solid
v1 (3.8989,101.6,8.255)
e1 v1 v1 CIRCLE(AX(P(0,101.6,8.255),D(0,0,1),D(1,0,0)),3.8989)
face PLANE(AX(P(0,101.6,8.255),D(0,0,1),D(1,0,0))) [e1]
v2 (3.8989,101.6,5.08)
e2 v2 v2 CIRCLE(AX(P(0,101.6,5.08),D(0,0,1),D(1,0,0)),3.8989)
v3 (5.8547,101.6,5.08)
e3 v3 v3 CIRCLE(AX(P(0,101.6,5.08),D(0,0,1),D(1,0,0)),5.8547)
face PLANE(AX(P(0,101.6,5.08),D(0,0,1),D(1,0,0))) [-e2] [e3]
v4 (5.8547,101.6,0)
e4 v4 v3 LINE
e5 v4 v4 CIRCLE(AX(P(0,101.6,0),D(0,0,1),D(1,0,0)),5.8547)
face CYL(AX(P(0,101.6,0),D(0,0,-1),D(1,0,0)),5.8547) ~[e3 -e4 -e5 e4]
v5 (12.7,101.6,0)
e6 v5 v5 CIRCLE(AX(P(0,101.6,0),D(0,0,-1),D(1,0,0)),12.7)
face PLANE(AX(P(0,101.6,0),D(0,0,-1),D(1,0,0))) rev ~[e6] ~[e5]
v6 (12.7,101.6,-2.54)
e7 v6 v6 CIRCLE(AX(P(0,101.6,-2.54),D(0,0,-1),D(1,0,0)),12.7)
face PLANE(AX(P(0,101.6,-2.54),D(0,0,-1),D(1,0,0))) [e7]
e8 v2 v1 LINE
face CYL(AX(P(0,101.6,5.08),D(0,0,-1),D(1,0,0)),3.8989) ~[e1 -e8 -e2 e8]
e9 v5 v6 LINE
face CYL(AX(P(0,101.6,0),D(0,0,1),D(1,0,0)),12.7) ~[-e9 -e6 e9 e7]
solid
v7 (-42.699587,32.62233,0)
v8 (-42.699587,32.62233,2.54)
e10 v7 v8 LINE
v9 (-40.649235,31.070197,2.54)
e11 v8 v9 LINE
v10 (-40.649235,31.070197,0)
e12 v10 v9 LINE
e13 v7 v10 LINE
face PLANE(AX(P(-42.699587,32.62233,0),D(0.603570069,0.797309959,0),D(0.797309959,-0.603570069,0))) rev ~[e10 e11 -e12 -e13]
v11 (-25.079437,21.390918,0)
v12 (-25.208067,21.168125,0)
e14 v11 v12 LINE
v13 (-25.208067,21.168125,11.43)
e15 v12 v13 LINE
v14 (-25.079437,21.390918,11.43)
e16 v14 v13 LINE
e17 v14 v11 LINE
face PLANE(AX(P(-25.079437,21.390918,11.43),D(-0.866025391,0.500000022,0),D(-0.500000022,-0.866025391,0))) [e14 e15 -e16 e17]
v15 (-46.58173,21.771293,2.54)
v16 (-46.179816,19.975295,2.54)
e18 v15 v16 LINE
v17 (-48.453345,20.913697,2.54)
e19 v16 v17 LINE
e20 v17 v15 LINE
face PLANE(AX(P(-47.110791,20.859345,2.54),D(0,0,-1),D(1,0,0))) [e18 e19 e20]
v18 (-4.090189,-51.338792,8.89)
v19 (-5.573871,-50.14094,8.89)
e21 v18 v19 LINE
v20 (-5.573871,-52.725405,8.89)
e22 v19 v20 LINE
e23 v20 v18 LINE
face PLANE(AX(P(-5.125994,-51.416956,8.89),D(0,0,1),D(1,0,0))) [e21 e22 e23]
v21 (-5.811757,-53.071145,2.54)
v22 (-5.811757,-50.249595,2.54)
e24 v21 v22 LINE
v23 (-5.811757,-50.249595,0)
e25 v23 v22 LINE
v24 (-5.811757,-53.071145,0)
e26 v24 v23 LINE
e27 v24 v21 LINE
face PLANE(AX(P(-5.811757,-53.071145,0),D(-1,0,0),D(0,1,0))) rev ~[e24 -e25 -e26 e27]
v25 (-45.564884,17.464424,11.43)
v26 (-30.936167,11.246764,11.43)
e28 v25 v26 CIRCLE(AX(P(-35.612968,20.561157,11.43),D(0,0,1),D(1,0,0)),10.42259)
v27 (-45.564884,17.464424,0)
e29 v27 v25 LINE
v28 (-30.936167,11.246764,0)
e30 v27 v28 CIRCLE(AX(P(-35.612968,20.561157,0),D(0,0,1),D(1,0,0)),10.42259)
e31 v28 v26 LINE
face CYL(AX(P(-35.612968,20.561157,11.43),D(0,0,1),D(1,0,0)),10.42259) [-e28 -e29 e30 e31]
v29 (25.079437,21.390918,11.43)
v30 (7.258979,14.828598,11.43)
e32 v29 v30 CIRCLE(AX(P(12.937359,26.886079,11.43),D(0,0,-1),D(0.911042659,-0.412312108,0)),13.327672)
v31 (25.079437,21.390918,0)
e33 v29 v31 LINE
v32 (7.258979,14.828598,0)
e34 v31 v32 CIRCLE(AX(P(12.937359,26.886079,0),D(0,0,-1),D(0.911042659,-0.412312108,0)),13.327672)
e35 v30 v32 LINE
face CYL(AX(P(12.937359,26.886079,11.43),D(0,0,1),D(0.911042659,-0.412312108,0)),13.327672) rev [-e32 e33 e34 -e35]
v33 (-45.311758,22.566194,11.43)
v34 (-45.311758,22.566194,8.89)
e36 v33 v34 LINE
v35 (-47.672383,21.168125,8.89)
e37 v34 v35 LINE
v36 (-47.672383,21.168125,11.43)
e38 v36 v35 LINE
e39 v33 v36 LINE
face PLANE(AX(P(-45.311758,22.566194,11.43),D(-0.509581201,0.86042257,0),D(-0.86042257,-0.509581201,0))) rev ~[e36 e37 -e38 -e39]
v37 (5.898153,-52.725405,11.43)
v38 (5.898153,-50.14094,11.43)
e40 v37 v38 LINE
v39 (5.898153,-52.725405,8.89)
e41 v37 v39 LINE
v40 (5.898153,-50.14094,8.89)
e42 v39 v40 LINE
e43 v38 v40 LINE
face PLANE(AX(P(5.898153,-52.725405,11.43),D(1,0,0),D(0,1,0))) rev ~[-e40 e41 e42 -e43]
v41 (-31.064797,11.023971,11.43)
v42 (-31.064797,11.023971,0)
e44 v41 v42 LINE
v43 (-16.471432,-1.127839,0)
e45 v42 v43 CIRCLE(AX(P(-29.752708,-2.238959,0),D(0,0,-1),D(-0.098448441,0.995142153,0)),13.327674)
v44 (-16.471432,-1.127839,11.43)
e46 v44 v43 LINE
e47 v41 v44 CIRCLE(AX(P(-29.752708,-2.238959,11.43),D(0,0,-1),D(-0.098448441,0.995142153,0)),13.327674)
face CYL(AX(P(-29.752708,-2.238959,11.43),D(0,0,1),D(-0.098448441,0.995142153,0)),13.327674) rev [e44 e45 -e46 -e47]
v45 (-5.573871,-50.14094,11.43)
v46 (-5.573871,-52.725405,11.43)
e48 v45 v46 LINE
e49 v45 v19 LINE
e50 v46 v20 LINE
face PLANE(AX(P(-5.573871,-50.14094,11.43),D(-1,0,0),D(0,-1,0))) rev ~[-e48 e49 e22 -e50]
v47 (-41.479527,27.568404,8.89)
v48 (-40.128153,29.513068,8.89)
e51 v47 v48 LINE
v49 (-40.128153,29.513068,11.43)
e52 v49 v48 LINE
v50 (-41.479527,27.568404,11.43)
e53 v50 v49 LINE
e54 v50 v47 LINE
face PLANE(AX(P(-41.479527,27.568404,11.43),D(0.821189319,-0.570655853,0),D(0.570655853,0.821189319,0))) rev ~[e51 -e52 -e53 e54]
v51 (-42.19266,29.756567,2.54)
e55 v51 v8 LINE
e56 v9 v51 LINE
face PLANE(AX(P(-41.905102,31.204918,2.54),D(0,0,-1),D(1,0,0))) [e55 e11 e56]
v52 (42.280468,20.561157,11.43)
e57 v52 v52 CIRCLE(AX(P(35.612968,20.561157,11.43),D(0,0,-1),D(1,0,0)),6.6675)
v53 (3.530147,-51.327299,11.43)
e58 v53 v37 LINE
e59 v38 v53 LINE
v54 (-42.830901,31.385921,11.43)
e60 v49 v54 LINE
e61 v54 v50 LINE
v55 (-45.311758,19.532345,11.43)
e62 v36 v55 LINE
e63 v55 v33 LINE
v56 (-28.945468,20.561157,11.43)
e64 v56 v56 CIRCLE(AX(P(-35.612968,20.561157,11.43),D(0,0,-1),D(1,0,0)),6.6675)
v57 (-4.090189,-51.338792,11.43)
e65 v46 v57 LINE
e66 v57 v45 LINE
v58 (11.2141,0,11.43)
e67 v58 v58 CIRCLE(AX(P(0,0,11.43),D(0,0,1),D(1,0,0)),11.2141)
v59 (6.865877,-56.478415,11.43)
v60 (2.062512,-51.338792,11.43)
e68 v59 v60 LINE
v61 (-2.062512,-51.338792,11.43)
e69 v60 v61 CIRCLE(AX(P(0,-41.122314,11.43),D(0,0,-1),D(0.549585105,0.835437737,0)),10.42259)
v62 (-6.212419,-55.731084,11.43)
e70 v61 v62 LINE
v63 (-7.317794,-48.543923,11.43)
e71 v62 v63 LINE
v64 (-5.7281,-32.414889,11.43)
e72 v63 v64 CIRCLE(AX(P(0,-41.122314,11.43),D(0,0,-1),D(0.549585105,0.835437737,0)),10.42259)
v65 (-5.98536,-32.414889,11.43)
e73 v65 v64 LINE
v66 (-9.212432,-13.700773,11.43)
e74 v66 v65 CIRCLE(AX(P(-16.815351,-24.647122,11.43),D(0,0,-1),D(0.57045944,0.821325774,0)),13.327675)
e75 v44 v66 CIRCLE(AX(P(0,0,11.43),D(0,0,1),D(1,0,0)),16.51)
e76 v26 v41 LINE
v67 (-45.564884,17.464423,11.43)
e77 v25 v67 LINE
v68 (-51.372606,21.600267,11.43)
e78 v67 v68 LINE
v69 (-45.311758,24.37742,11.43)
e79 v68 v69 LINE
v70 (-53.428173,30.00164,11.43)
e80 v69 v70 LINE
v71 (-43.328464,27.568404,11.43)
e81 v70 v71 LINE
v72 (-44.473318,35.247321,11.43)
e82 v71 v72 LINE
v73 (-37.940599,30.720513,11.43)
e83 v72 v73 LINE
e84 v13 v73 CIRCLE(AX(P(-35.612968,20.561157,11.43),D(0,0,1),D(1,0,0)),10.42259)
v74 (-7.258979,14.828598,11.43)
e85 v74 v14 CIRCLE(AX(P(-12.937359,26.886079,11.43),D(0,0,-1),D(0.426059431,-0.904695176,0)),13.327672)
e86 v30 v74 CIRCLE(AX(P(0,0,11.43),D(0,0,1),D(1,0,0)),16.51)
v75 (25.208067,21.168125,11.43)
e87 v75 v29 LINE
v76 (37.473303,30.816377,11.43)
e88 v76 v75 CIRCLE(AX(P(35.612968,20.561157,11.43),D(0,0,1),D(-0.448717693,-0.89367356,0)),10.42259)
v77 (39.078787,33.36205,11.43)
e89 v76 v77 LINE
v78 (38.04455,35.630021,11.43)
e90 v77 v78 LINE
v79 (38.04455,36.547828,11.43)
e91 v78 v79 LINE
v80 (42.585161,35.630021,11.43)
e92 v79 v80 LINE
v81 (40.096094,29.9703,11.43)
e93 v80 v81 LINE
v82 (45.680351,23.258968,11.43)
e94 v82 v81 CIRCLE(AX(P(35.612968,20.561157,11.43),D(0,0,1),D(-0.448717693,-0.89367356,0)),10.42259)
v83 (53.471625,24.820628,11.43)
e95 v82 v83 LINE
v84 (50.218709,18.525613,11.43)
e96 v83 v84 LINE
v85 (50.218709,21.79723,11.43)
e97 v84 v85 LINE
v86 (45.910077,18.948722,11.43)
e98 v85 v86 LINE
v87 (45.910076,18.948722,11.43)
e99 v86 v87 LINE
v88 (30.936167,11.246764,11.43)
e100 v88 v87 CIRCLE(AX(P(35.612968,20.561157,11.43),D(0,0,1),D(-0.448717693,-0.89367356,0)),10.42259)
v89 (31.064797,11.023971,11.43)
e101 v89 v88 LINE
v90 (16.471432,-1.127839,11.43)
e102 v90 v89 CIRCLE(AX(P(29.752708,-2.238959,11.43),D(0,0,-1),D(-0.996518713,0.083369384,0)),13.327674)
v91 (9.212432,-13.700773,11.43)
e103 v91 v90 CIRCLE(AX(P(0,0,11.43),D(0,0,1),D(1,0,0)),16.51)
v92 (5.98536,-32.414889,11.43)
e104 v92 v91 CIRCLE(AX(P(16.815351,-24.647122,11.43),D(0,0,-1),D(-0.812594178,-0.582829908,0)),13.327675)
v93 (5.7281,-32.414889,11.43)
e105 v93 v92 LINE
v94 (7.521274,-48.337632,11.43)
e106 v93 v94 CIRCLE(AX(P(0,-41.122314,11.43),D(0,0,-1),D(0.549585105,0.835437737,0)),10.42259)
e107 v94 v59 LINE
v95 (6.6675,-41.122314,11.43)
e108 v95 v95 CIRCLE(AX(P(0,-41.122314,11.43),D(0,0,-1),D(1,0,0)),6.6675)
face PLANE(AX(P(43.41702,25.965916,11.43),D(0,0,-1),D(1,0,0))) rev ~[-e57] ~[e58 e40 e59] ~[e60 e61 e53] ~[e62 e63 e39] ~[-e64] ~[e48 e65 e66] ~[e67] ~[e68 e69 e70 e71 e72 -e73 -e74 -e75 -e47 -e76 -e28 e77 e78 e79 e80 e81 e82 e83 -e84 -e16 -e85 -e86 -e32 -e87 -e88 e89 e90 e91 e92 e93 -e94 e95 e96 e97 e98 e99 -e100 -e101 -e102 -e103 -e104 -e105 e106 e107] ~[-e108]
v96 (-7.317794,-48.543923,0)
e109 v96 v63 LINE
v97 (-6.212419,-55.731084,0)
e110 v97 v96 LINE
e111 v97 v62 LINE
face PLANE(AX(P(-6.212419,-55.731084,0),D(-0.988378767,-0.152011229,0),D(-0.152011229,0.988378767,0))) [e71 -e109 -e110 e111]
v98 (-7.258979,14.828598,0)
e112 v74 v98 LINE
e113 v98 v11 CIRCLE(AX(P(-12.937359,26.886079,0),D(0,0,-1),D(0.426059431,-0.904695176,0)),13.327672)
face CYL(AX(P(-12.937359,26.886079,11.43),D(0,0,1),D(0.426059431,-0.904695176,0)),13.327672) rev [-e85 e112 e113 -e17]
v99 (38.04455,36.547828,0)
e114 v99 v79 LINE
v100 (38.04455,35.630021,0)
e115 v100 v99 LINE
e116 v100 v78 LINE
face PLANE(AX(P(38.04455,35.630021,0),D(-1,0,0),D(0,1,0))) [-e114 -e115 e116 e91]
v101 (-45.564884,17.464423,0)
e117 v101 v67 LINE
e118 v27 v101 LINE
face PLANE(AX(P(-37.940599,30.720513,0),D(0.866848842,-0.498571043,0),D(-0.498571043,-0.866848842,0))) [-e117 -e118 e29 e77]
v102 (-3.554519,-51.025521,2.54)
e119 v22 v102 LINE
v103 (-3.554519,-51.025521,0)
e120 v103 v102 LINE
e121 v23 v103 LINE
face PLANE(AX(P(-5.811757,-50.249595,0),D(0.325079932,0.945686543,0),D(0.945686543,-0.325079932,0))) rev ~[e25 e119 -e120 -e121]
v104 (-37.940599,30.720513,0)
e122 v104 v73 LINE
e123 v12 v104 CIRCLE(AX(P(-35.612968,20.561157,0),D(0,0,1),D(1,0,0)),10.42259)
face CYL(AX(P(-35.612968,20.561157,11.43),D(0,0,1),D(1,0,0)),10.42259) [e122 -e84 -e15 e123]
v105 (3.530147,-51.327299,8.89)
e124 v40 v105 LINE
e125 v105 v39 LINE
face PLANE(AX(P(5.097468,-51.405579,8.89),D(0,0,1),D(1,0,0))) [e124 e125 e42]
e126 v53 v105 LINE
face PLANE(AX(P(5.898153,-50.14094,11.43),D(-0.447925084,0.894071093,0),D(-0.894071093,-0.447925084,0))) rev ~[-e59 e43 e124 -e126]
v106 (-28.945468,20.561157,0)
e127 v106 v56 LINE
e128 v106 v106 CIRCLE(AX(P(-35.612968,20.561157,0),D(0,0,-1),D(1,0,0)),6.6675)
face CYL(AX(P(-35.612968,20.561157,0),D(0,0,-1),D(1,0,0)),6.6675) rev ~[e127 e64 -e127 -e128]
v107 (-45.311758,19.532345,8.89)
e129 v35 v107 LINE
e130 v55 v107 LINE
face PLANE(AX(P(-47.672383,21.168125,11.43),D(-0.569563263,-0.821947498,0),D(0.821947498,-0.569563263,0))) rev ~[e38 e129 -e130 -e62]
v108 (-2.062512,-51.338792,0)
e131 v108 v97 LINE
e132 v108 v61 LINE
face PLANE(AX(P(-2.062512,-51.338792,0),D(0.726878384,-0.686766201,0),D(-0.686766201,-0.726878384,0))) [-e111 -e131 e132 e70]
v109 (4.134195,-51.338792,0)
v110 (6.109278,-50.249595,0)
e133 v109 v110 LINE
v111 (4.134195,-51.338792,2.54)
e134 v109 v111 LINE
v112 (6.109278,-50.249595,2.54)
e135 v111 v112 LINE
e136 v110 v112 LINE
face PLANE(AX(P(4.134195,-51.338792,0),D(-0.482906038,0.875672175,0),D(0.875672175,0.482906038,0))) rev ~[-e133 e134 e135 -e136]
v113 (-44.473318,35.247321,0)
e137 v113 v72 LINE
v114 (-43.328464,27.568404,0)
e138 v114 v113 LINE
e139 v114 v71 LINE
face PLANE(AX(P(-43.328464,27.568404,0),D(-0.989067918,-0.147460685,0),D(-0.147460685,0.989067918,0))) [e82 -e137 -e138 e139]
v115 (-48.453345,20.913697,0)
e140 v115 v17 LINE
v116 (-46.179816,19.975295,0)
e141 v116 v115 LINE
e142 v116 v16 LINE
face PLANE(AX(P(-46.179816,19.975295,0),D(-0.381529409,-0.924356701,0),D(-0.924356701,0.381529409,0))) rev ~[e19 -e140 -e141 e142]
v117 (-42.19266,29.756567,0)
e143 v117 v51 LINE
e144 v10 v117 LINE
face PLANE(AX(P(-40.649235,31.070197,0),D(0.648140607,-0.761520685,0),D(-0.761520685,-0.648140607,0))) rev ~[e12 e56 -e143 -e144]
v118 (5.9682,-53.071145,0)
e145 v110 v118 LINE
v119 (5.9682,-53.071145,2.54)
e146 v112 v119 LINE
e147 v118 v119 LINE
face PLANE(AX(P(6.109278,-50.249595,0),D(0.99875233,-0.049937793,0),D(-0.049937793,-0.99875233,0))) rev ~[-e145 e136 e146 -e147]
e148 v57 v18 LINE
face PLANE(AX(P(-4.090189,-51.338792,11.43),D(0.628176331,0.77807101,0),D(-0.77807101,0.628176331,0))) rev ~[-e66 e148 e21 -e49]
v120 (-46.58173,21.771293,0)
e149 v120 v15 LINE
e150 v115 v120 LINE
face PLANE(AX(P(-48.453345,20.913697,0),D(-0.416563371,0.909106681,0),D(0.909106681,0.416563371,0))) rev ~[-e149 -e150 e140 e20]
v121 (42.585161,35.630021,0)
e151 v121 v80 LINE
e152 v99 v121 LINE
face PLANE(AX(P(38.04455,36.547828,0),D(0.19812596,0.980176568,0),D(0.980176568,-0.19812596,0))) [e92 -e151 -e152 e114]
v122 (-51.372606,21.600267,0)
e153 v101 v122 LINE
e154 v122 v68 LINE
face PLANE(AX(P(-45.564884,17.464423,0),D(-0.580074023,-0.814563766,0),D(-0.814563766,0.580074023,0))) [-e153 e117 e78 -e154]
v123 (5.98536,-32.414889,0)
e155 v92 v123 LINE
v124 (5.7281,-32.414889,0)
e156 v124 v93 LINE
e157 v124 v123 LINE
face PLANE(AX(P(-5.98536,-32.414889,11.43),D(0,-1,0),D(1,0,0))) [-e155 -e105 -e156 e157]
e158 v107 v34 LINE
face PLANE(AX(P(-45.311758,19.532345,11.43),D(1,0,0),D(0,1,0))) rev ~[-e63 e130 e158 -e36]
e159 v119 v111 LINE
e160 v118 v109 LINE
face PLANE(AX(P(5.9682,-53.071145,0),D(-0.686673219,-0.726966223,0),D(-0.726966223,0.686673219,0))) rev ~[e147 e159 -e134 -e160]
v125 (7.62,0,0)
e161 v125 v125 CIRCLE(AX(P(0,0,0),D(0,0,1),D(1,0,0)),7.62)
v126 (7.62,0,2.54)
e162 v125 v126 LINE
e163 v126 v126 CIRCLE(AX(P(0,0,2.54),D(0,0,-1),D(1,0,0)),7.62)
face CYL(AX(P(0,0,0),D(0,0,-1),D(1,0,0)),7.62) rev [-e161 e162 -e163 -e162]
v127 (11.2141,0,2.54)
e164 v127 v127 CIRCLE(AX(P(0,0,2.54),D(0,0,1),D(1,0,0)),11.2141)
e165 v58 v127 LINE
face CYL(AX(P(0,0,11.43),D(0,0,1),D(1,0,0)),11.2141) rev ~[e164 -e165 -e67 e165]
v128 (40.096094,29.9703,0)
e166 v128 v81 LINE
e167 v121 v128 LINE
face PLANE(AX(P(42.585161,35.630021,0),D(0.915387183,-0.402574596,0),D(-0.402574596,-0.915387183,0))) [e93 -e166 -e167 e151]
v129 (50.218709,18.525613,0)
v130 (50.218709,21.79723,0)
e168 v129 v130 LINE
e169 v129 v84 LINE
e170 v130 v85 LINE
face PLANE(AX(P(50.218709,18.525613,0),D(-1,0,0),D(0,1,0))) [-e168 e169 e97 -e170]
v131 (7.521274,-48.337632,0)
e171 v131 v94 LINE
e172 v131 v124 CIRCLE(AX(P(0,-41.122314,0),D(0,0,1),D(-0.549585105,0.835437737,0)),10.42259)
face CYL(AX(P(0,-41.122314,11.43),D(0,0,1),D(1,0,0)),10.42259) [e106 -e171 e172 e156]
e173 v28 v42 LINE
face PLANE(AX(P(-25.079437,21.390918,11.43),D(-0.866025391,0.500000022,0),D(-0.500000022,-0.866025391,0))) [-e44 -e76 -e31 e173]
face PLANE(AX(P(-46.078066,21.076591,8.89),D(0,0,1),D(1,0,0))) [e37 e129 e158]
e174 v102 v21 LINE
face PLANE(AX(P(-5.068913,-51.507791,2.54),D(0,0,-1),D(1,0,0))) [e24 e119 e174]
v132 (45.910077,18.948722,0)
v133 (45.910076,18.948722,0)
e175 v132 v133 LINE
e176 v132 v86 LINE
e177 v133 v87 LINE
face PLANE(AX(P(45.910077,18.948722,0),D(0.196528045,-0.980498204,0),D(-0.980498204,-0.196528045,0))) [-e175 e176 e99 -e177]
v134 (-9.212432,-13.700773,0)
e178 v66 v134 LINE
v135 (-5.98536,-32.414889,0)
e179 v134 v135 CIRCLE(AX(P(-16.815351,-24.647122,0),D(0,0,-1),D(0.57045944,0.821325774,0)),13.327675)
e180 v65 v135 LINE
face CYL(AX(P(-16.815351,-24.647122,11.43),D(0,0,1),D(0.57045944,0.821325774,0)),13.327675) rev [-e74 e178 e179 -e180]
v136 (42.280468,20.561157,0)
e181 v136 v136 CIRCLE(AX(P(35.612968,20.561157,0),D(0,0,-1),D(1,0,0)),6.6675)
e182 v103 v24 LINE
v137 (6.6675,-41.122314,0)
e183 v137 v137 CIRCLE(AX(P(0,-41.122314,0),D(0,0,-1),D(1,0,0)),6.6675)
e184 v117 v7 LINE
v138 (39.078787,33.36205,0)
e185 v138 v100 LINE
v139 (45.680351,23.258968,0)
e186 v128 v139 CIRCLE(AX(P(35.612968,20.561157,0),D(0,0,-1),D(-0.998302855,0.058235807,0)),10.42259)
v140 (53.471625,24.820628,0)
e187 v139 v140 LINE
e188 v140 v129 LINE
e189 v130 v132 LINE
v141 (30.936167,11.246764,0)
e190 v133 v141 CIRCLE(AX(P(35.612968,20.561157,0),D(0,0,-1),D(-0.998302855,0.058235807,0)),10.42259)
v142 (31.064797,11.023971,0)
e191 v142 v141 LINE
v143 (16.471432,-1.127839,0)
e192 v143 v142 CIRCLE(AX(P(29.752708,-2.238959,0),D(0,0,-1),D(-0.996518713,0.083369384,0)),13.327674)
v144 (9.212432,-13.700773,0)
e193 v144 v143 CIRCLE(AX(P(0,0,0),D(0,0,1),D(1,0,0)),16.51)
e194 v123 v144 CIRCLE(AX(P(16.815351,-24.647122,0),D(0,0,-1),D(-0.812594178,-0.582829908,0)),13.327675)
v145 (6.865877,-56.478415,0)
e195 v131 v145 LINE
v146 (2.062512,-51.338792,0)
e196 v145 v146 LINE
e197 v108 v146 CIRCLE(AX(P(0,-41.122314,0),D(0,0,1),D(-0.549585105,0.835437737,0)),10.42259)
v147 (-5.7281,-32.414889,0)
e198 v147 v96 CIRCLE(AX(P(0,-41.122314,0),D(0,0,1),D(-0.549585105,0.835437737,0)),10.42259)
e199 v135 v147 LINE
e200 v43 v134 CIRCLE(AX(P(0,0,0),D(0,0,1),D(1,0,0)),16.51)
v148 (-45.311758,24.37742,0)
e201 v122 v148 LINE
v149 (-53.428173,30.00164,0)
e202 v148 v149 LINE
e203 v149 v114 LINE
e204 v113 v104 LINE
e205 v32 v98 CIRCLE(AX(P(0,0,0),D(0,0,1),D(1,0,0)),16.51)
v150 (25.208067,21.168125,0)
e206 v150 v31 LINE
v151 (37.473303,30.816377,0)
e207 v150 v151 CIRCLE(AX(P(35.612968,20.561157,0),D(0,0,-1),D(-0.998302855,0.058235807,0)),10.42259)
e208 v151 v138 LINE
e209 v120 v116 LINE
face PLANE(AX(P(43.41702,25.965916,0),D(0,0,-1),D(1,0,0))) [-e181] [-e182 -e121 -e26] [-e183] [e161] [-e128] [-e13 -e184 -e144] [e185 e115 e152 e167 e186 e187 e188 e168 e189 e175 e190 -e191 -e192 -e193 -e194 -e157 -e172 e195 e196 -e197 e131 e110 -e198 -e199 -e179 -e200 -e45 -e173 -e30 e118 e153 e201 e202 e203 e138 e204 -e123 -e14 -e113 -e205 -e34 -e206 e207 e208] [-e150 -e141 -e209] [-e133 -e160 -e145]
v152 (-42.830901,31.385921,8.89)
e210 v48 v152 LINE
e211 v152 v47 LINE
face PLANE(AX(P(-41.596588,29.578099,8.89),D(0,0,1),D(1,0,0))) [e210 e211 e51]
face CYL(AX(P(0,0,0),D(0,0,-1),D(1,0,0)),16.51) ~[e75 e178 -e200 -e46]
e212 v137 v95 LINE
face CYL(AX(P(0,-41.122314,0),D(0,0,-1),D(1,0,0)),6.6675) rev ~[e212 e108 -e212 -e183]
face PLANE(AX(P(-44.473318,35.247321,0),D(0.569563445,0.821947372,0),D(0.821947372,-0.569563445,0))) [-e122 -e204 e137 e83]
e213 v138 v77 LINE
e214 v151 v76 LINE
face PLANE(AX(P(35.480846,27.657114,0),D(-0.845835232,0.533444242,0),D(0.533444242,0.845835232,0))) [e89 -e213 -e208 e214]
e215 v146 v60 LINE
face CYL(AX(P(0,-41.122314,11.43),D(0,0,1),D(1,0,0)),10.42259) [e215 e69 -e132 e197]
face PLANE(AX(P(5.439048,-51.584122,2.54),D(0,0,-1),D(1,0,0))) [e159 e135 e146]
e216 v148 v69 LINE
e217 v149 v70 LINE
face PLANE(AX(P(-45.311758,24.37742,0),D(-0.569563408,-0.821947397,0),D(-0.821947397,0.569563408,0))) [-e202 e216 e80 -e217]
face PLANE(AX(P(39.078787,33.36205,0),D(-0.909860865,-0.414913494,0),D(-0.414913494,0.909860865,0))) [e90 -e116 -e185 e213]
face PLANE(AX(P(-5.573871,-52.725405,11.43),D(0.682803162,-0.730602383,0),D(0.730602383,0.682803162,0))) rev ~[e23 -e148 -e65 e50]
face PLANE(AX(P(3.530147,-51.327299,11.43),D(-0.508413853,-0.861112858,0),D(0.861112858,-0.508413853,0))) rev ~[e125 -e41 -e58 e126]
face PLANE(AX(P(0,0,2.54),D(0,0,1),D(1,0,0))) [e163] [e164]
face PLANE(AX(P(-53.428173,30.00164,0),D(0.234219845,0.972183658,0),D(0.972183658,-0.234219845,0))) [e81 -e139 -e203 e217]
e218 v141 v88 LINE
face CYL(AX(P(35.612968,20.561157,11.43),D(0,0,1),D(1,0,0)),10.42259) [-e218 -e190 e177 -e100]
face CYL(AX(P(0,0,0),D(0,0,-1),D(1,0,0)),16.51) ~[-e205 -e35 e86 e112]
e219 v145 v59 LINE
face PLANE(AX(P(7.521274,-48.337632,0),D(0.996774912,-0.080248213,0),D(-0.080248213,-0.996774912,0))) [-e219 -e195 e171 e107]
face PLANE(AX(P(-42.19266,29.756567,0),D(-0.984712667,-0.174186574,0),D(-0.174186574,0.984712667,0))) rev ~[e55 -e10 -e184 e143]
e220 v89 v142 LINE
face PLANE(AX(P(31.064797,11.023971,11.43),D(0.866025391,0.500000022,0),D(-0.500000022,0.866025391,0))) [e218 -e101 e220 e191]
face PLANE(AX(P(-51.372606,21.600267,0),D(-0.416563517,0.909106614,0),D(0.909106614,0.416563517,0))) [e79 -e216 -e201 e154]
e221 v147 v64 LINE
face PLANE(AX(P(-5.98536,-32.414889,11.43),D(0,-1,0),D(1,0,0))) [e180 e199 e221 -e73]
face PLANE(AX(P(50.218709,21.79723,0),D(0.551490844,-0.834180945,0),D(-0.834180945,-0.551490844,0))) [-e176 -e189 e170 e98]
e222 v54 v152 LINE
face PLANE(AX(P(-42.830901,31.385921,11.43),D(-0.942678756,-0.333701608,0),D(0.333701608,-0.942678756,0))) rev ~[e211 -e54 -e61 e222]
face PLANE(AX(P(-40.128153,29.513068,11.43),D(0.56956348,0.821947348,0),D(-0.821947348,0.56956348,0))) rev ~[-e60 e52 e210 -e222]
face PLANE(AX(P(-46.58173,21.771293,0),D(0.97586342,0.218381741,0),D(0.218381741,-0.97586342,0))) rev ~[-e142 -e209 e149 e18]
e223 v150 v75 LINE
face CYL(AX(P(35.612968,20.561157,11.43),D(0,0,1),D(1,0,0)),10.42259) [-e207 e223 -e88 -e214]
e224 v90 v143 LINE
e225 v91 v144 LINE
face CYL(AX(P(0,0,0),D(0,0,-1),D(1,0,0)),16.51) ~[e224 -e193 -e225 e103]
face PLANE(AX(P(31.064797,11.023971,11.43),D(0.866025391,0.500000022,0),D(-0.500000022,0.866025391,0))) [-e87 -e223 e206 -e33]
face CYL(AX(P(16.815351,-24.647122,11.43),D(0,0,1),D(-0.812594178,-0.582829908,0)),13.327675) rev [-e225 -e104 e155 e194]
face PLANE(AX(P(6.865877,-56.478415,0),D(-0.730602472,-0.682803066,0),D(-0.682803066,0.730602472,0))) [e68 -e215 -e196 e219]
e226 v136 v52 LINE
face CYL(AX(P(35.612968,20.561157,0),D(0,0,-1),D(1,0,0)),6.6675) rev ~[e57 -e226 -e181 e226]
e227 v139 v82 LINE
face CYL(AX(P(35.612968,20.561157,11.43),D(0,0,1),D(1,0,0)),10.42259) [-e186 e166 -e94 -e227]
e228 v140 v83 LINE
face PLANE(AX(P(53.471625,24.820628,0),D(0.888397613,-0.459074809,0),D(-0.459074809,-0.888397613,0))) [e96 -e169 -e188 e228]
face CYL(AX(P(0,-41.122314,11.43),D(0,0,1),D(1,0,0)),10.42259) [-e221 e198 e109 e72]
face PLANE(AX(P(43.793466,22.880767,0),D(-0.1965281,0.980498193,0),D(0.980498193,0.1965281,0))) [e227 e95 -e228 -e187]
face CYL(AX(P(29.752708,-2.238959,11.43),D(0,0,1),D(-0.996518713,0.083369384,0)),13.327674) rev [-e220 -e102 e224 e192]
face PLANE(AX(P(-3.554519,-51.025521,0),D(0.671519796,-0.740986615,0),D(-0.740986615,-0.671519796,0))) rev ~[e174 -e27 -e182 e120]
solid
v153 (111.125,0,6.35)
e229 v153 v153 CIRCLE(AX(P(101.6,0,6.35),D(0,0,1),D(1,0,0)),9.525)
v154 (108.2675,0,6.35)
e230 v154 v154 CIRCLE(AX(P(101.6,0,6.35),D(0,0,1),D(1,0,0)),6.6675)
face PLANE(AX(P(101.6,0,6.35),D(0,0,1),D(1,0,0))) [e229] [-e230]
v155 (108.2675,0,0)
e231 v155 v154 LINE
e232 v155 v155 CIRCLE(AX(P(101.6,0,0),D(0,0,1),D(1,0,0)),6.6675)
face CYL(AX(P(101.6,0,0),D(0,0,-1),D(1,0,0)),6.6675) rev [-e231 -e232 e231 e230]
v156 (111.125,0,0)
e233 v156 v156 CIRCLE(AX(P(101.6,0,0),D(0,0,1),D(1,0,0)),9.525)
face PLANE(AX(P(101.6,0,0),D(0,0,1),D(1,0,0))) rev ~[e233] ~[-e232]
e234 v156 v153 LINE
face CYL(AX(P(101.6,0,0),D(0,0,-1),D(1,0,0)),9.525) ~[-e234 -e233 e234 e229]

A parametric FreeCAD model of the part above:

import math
import FreeCAD as App
import Part
import Sketcher

V = App.Vector
Q = App.Units.Quantity

doc = App.newDocument("Part")
body = doc.addObject("PartDesign::Body", "Body")

# Sketch on XY plane
sketch1 = body.newObject("Sketcher::SketchObject", "Sketch")
sketch1.AttachmentSupport = (doc.getObject("XY_Plane"), [""])
sketch1.MapMode = "FlatFace"
sketch1.addGeometry(Part.Circle(V(0, 102, 0), V(0, 0, 1), 6), False)
sketch1.addConstraint([
    Sketcher.Constraint("PointOnObject", 0, 3, -2),
    Sketcher.Constraint("Diameter", 0, Q("0.461 in")),
    Sketcher.Constraint("DistanceY", -1, 1, 0, 3, Q("4 in")),
])
pad1 = body.newObject("PartDesign::Pad", "Pad")
pad1.Profile = sketch1
pad1.Length = Q("0.2 in")

# Sketch on XY plane
sketch2 = body.newObject("Sketcher::SketchObject", "Sketch001")
sketch2.AttachmentSupport = (doc.getObject("XY_Plane"), [""])
sketch2.MapMode = "FlatFace"
sketch2.AttachmentOffset = App.Placement(V(0, 0, 0.2 * 25.4), App.Rotation())
sketch2.addGeometry(Part.Circle(V(0, 101.6, 0), V(0, 0, 1), 3.9), False)
sketch2.addConstraint([
    Sketcher.Constraint("PointOnObject", 0, 3, -2),
    Sketcher.Constraint("Diameter", 0, Q("0.307 in")),
    Sketcher.Constraint("DistanceY", -1, 1, 0, 3, Q("4 in")),
])
pad2 = body.newObject("PartDesign::Pad", "Pad001")
pad2.Profile = sketch2
pad2.Length = Q("0.125 in")

# Sketch on XY plane
sketch3 = body.newObject("Sketcher::SketchObject", "Sketch002")
sketch3.AttachmentSupport = (doc.getObject("XY_Plane"), [""])
sketch3.MapMode = "FlatFace"
sketch3.addGeometry(Part.Circle(V(0, 102, 0), V(0, 0, 1), 13), False)
sketch3.addConstraint([
    Sketcher.Constraint("PointOnObject", 0, 3, -2),
    Sketcher.Constraint("Diameter", 0, Q("1 in")),
    Sketcher.Constraint("DistanceY", -1, 1, 0, 3, Q("4 in")),
])
pad3 = body.newObject("PartDesign::Pad", "Pad002")
pad3.Profile = sketch3
pad3.Length = Q("0.1 in")
pad3.Reversed = True
body2 = doc.addObject("PartDesign::Body", "Body001")

# Sketch on XY plane
sketch4 = body2.newObject("Sketcher::SketchObject", "Sketch003")
sketch4.AttachmentSupport = (doc.getObject("XY_Plane001"), [""])
sketch4.MapMode = "FlatFace"
sketch4.addGeometry([
    Part.Circle(V(102, 0, 0), V(0, 0, 1), 10),
    Part.Circle(V(102, 0, 0), V(0, 0, 1), 7),
], False)
sketch4.addConstraint([
    Sketcher.Constraint("Coincident", 1, 3, 0, 3),
    Sketcher.Constraint("PointOnObject", 0, 3, -1),
    Sketcher.Constraint("Diameter", 0, Q("0.75 in")),
    Sketcher.Constraint("Diameter", 1, Q("0.525 in")),
    Sketcher.Constraint("DistanceX", -1, 1, 0, 3, Q("4 in")),
])
pad4 = body2.newObject("PartDesign::Pad", "Pad003")
pad4.Profile = sketch4
pad4.Length = Q("0.25 in")
body3 = doc.addObject("PartDesign::Body", "Body002")

# Sketch on XY plane
sketch5 = body3.newObject("Sketcher::SketchObject", "Sketch004")
sketch5.AttachmentSupport = (doc.getObject("XY_Plane002"), [""])
sketch5.MapMode = "FlatFace"
sketch5.addGeometry([
    Part.Circle(V(0, 0, 0), V(0, 0, 1), 17),
    Part.Circle(V(0, 0, 0), V(0, 0, 1), 8),
], False)
sketch5.addConstraint([
    Sketcher.Constraint("Coincident", 0, 3, -1, 1),
    Sketcher.Constraint("Coincident", 1, 3, -1, 1),
    Sketcher.Constraint("Diameter", 0, Q("1.3 in")),
    Sketcher.Constraint("Diameter", 1, Q("0.6 in")),
])
pad5 = body3.newObject("PartDesign::Pad", "Pad004")
pad5.Profile = sketch5
pad5.Length = Q("0.45 in")

# Sketch on XY plane
sketch6 = body3.newObject("Sketcher::SketchObject", "Sketch005")
sketch6.AttachmentSupport = (doc.getObject("XY_Plane002"), [""])
sketch6.MapMode = "FlatFace"
sketch6.AttachmentOffset = App.Placement(V(0, 0, 0.45 * 25.4), App.Rotation())
sketch6.addGeometry(Part.Circle(V(0, 0, 0), V(0, 0, 1), 11), False)
sketch6.addConstraint([
    Sketcher.Constraint("Coincident", 0, 3, -1, 1),
    Sketcher.Constraint("Diameter", 0, Q("0.883 in")),
])
pocket1 = body3.newObject("PartDesign::Pocket", "Pocket")
pocket1.Profile = sketch6
pocket1.Length = Q("0.35 in")

# Sketch on XY plane
sketch7 = body3.newObject("Sketcher::SketchObject", "Sketch006")
sketch7.AttachmentSupport = (doc.getObject("XY_Plane002"), [""])
sketch7.MapMode = "FlatFace"
sketch7.AttachmentOffset = App.Placement(V(0, 0, 0.45 * 25.4), App.Rotation())
sketch7.addGeometry([
    Part.ArcOfCircle(Part.Circle(V(17, -25, 0), V(0, 0, 1), 13), math.radians(125), math.radians(216)),  # 0
    Part.LineSegment(V(9, -14, 0), V(-9, -14, 0)),  # 1
    Part.ArcOfCircle(Part.Circle(V(-17, -25, 0), V(0, 0, 1), 13), math.radians(-36), math.radians(55)),  # 2
    Part.LineSegment(V(-6, -32, 0), V(6, -32, 0)),  # 3
    Part.ArcOfCircle(Part.Circle(V(13, 27, 0), V(0, 0, 1), 13), math.radians(-115), math.radians(-24)),  # 4
    Part.LineSegment(V(7, 15, 0), V(16, -1, 0)),  # 5
    Part.ArcOfCircle(Part.Circle(V(30, -2, 0), V(0, 0, 1), 13), math.radians(84), math.radians(175)),  # 6
    Part.LineSegment(V(31, 11, 0), V(25, 21, 0)),  # 7
    Part.ArcOfCircle(Part.Circle(V(-30, -2, 0), V(0, 0, 1), 13), math.radians(5), math.radians(96)),  # 8
    Part.LineSegment(V(-16, -1, 0), V(-7, 15, 0)),  # 9
    Part.ArcOfCircle(Part.Circle(V(-13, 27, 0), V(0, 0, 1), 13), math.radians(-156), math.radians(-65)),  # 10
    Part.LineSegment(V(-25, 21, 0), V(-31, 11, 0)),  # 11
], False)
sketch7.addConstraint([
    Sketcher.Constraint("Coincident", 0, 1, 1, 1),
    Sketcher.Constraint("Coincident", 1, 2, 2, 2),
    Sketcher.Constraint("Coincident", 2, 1, 3, 1),
    Sketcher.Constraint("Coincident", 3, 2, 0, 2),
    Sketcher.Constraint("Coincident", 4, 1, 5, 1),
    Sketcher.Constraint("Coincident", 5, 2, 6, 2),
    Sketcher.Constraint("Coincident", 6, 1, 7, 1),
    Sketcher.Constraint("Coincident", 7, 2, 4, 2),
    Sketcher.Constraint("Coincident", 8, 1, 9, 1),
    Sketcher.Constraint("Coincident", 9, 2, 10, 2),
    Sketcher.Constraint("Coincident", 10, 1, 11, 1),
    Sketcher.Constraint("Coincident", 11, 2, 8, 2),
    Sketcher.Constraint("Horizontal", 1),
    Sketcher.Constraint("Horizontal", 3),
    Sketcher.Constraint("Equal", 0, 2),
    Sketcher.Constraint("Equal", 4, 6),
    Sketcher.Constraint("Equal", 6, 8),
    Sketcher.Constraint("Equal", 8, 10),
    Sketcher.Constraint("Symmetric", 0, 3, 2, 3, -2),
    Sketcher.Constraint("Symmetric", 6, 3, 8, 3, -2),
    Sketcher.Constraint("Symmetric", 4, 3, 10, 3, -2),
    Sketcher.Constraint("Parallel", 5, 7),
    Sketcher.Constraint("Parallel", 9, 11),
    Sketcher.Constraint("Horizontal", 5, 2, 8, 1),
    Sketcher.Constraint("Horizontal", 4, 1, 9, 2),
    Sketcher.Constraint("Horizontal", 7, 2, 10, 1),
    Sketcher.Constraint("Angle", 5, Q("-60.000001 deg")),
    Sketcher.Constraint("Radius", 4, 13.327672),
    Sketcher.Constraint("DistanceY", 0, 1, -1, 1, Q("0.5394 in")),
    Sketcher.Constraint("Radius", 0, 13.327675),
    Sketcher.Constraint("DistanceX", 3, 1, 3, 2, 11.97072),
    Sketcher.Constraint("DistanceX", 2, 3, 0, 3, 33.630702),
    Sketcher.Constraint("DistanceY", 0, 3, 4, 3, 51.5332),
    Sketcher.Constraint("DistanceY", 0, 1, 6, 3, 11.4618),
    Sketcher.Constraint("Distance", 7, 11.970719),
    Sketcher.Constraint("DistanceX", 1, 2, 1, 1, 18.424906),
    Sketcher.Constraint("DistanceX", -1, 1, 4, 3, 12.937359),
    Sketcher.Constraint("DistanceX", -1, 1, 6, 3, 29.752708),
    Sketcher.Constraint("DistanceX", -1, 1, 4, 1, 7.258979),
])
pad6 = body3.newObject("PartDesign::Pad", "Pad005")
pad6.Profile = sketch7
pad6.Length = Q("0.45 in")
pad6.Reversed = True

# Sketch on XY plane
sketch8 = body3.newObject("Sketcher::SketchObject", "Sketch007")
sketch8.AttachmentSupport = (doc.getObject("XY_Plane002"), [""])
sketch8.MapMode = "FlatFace"
sketch8.AttachmentOffset = App.Placement(V(0, 0, 0.45 * 25.4), App.Rotation())
sketch8.addGeometry([
    Part.Circle(V(0, -41, 0), V(0, 0, 1), 10),
    Part.Circle(V(36, 21, 0), V(0, 0, 1), 10),
    Part.Circle(V(-36, 21, 0), V(0, 0, 1), 10),
], False)
sketch8.addConstraint([
    Sketcher.Constraint("Equal", 0, 1),
    Sketcher.Constraint("Equal", 1, 2),
    Sketcher.Constraint("Symmetric", 1, 3, 2, 3, -2),
    Sketcher.Constraint("PointOnObject", 0, 3, -2),
    Sketcher.Constraint("Diameter", 0, 20.84518),
    Sketcher.Constraint("DistanceX", -1, 1, 1, 3, 35.612968),
    Sketcher.Constraint("DistanceY", 0, 3, 1, 3, 61.683471),
    Sketcher.Constraint("DistanceY", 0, 3, -1, 1, 41.122314),
])
pad7 = body3.newObject("PartDesign::Pad", "Pad006")
pad7.Profile = sketch8
pad7.Length = Q("0.45 in")
pad7.Reversed = True

# Sketch on XY plane
sketch9 = body3.newObject("Sketcher::SketchObject", "Sketch008")
sketch9.AttachmentSupport = (doc.getObject("XY_Plane002"), [""])
sketch9.MapMode = "FlatFace"
sketch9.addGeometry([
    Part.LineSegment(V(-6.2, -55.7, 0), V(-7.3, -48.5, 0)),  # 0
    Part.LineSegment(V(-7.3, -48.5, 0), V(7.5, -48.3, 0)),  # 1
    Part.LineSegment(V(7.5, -48.3, 0), V(6.9, -56.5, 0)),  # 2
    Part.LineSegment(V(6.9, -56.5, 0), V(2.1, -51.3, 0)),  # 3
    Part.LineSegment(V(2.1, -51.3, 0), V(-2.1, -51.3, 0)),  # 4
    Part.LineSegment(V(-2.1, -51.3, 0), V(-6.2, -55.7, 0)),  # 5
], False)
sketch9.addConstraint([
    Sketcher.Constraint("Coincident", 0, 2, 1, 1),
    Sketcher.Constraint("Coincident", 1, 2, 2, 1),
    Sketcher.Constraint("Coincident", 2, 2, 3, 1),
    Sketcher.Constraint("Coincident", 3, 2, 4, 1),
    Sketcher.Constraint("Coincident", 4, 2, 5, 1),
    Sketcher.Constraint("Coincident", 5, 2, 0, 1),
    Sketcher.Constraint("Horizontal", 4),
    Sketcher.Constraint("Distance", 1, 14.840502),
    Sketcher.Constraint("DistanceX", 4, 2, 4, 1, 4.125024),
    Sketcher.Constraint("DistanceX", -1, 1, 3, 2, 2.062512),
    Sketcher.Constraint("DistanceY", 3, 2, -1, 1, 51.338792),
    Sketcher.Constraint("DistanceX", 5, 2, -1, 1, 6.212419),
    Sketcher.Constraint("DistanceX", 0, 2, 1, 2, 14.839068),
    Sketcher.Constraint("DistanceX", 0, 2, 2, 2, 14.183671),
    Sketcher.Constraint("DistanceY", 2, 2, 0, 2, 7.934492),
    Sketcher.Constraint("DistanceY", 3, 2, 1, 2, 3.00116),
    Sketcher.Constraint("DistanceX", 4, 2, 2, 2, 8.928389),
    Sketcher.Constraint("DistanceY", 5, 2, 0, 2, 7.187161),
])
pad8 = body3.newObject("PartDesign::Pad", "Pad007")
pad8.Profile = sketch9
pad8.Length = Q("0.45 in")

# Sketch on XY plane
sketch10 = body3.newObject("Sketcher::SketchObject", "Sketch009")
sketch10.AttachmentSupport = (doc.getObject("XY_Plane002"), [""])
sketch10.MapMode = "FlatFace"
sketch10.addGeometry([
    Part.LineSegment(V(-44, 35, 0), V(-38, 31, 0)),  # 0
    Part.LineSegment(V(-38, 31, 0), V(-46, 17, 0)),  # 1
    Part.LineSegment(V(-46, 17, 0), V(-51, 22, 0)),  # 2
    Part.LineSegment(V(-51, 22, 0), V(-45, 24, 0)),  # 3
    Part.LineSegment(V(-45, 24, 0), V(-53, 30, 0)),  # 4
    Part.LineSegment(V(-53, 30, 0), V(-43, 28, 0)),  # 5
    Part.LineSegment(V(-43, 28, 0), V(-44, 35, 0)),  # 6
], False)
sketch10.addConstraint([
    Sketcher.Constraint("Coincident", 0, 2, 1, 1),
    Sketcher.Constraint("Coincident", 1, 2, 2, 1),
    Sketcher.Constraint("Coincident", 2, 2, 3, 1),
    Sketcher.Constraint("Coincident", 3, 2, 4, 1),
    Sketcher.Constraint("Coincident", 4, 2, 5, 1),
    Sketcher.Constraint("Coincident", 5, 2, 6, 1),
    Sketcher.Constraint("Coincident", 6, 2, 0, 1),
    Sketcher.Constraint("Parallel", 0, 4),
    Sketcher.Constraint("DistanceX", 0, 2, -1, 1, 37.940599),
    Sketcher.Constraint("DistanceY", 3, 2, 6, 2, 10.869901),
    Sketcher.Constraint("Distance", 6, 7.763791),
    Sketcher.Constraint("DistanceY", -1, 1, 3, 2, 24.37742),
    Sketcher.Constraint("DistanceY", -1, 1, 4, 2, 30.00164),
    Sketcher.Constraint("DistanceY", 1, 2, 0, 2, 13.25609),
    Sketcher.Constraint("DistanceX", 2, 2, 1, 2, 5.807722),
    Sketcher.Constraint("DistanceX", 3, 2, 0, 2, 7.371159),
    Sketcher.Constraint("DistanceX", 4, 2, 1, 2, 7.863289),
    Sketcher.Constraint("DistanceY", 5, 2, 0, 2, 3.152109),
    Sketcher.Constraint("DistanceX", 1, 2, 5, 2, 2.23642),
    Sketcher.Constraint("DistanceX", 6, 2, 0, 2, 6.532719),
    Sketcher.Constraint("Distance", 2, 7.129856),
])
pad9 = body3.newObject("PartDesign::Pad", "Pad008")
pad9.Profile = sketch10
pad9.Length = Q("0.45 in")

# Sketch on XY plane
sketch11 = body3.newObject("Sketcher::SketchObject", "Sketch010")
sketch11.AttachmentSupport = (doc.getObject("XY_Plane002"), [""])
sketch11.MapMode = "FlatFace"
sketch11.addGeometry([
    Part.LineSegment(V(-42.7, 32.6, 0), V(-40.6, 31.1, 0)),  # 0
    Part.LineSegment(V(-40.6, 31.1, 0), V(-42.2, 29.8, 0)),  # 1
    Part.LineSegment(V(-42.2, 29.8, 0), V(-42.7, 32.6, 0)),  # 2
    Part.LineSegment(V(-48.5, 20.9, 0), V(-46.6, 21.8, 0)),  # 3
    Part.LineSegment(V(-46.6, 21.8, 0), V(-46.2, 20, 0)),  # 4
    Part.LineSegment(V(-46.2, 20, 0), V(-48.5, 20.9, 0)),  # 5
], False)
sketch11.addConstraint([
    Sketcher.Constraint("Coincident", 0, 2, 1, 1),
    Sketcher.Constraint("Coincident", 1, 2, 2, 1),
    Sketcher.Constraint("Coincident", 2, 2, 0, 1),
    Sketcher.Constraint("Coincident", 3, 2, 4, 1),
    Sketcher.Constraint("Coincident", 4, 2, 5, 1),
    Sketcher.Constraint("Coincident", 5, 2, 3, 1),
    Sketcher.Constraint("DistanceY", 4, 2, 3, 2, 1.795998),
    Sketcher.Constraint("DistanceY", 4, 2, 5, 2, 0.938402),
    Sketcher.Constraint("DistanceY", 5, 2, 0, 2, 10.1565),
    Sketcher.Constraint("Distance", 3, 2.058741),
    Sketcher.Constraint("Distance", 4, 1.840419),
    Sketcher.Constraint("DistanceX", 1, 2, -1, 1, 42.19266),
    Sketcher.Constraint("DistanceY", -1, 1, 2, 2, 32.62233),
    Sketcher.Constraint("DistanceX", 3, 2, -1, 1, 46.58173),
    Sketcher.Constraint("DistanceY", 1, 2, 0, 2, 1.31363),
    Sketcher.Constraint("DistanceX", 4, 2, 0, 2, 5.530581),
    Sketcher.Constraint("DistanceX", 4, 2, 2, 2, 3.480229),
    Sketcher.Constraint("Distance", 0, 2.571587),
])
pocket2 = body3.newObject("PartDesign::Pocket", "Pocket001")
pocket2.Profile = sketch11
pocket2.Length = Q("0.1 in")
pocket2.Reversed = True

# Sketch on XY plane
sketch12 = body3.newObject("Sketcher::SketchObject", "Sketch011")
sketch12.AttachmentSupport = (doc.getObject("XY_Plane002"), [""])
sketch12.MapMode = "FlatFace"
sketch12.addGeometry([
    Part.LineSegment(V(50.218709, 21.79723, 0), V(45.910077, 18.948722, 0)),  # 0
    Part.LineSegment(V(45.910077, 18.948722, 0), V(43.793466, 18.524475, 0)),  # 1
    Part.LineSegment(V(43.793466, 18.524475, 0), V(35.480846, 26.646961, 0)),  # 2
    Part.LineSegment(V(35.480846, 26.646961, 0), V(35.480846, 27.657114, 0)),  # 3
    Part.LineSegment(V(35.480846, 27.657114, 0), V(39.078787, 33.36205, 0)),  # 4
    Part.LineSegment(V(39.078787, 33.36205, 0), V(38.04455, 35.630021, 0)),  # 5
    Part.LineSegment(V(38.04455, 35.630021, 0), V(38.04455, 36.547828, 0)),  # 6
    Part.LineSegment(V(38.04455, 36.547828, 0), V(42.585161, 35.630021, 0)),  # 7
    Part.LineSegment(V(42.585161, 35.630021, 0), V(39.078787, 27.657114, 0)),  # 8
    Part.LineSegment(V(39.078787, 27.657114, 0), V(43.793466, 22.880767, 0)),  # 9
    Part.LineSegment(V(43.793466, 22.880767, 0), V(53.471625, 24.820628, 0)),  # 10
    Part.LineSegment(V(53.471625, 24.820628, 0), V(50.218709, 18.525613, 0)),  # 11
    Part.LineSegment(V(50.218709, 18.525613, 0), V(50.218709, 21.79723, 0)),  # 12
], False)
sketch12.addConstraint([
    Sketcher.Constraint("Coincident", 0, 2, 1, 1),
    Sketcher.Constraint("Coincident", 1, 2, 2, 1),
    Sketcher.Constraint("Coincident", 2, 2, 3, 1),
    Sketcher.Constraint("Coincident", 3, 2, 4, 1),
    Sketcher.Constraint("Coincident", 4, 2, 5, 1),
    Sketcher.Constraint("Coincident", 5, 2, 6, 1),
    Sketcher.Constraint("Coincident", 6, 2, 7, 1),
    Sketcher.Constraint("Coincident", 7, 2, 8, 1),
    Sketcher.Constraint("Coincident", 8, 2, 9, 1),
    Sketcher.Constraint("Coincident", 9, 2, 10, 1),
    Sketcher.Constraint("Coincident", 10, 2, 11, 1),
    Sketcher.Constraint("Coincident", 11, 2, 12, 1),
    Sketcher.Constraint("Coincident", 12, 2, 0, 1),
    Sketcher.Constraint("Vertical", 3),
    Sketcher.Constraint("Vertical", 6),
    Sketcher.Constraint("Vertical", 12),
    Sketcher.Constraint("DistanceY", 0, 2, 5, 2, 16.681299),
    Sketcher.Constraint("DistanceY", 11, 2, 8, 2, 9.131501),
    Sketcher.Constraint("DistanceY", 12, 2, 10, 2, 3.023398),
    Sketcher.Constraint("Distance", 1, 2.15871),
    Sketcher.Constraint("Distance", 7, 4.632442),
    Sketcher.Constraint("Distance", 9, 6.711311),
    Sketcher.Constraint("Distance", 11, 7.085808),
    Sketcher.Constraint("DistanceY", 3, 1, 3, 2, 1.010153),
    Sketcher.Constraint("DistanceY", 6, 1, 6, 2, 0.917807),
    Sketcher.Constraint("DistanceY", 12, 1, 12, 2, 3.271617),
    Sketcher.Constraint("DistanceY", -1, 1, 0, 2, 18.948722),
    Sketcher.Constraint("DistanceY", -1, 1, 2, 2, 26.646961),
    Sketcher.Constraint("DistanceY", -1, 1, 4, 2, 33.36205),
    Sketcher.Constraint("DistanceX", -1, 1, 5, 2, 38.04455),
    Sketcher.Constraint("DistanceX", -1, 1, 7, 2, 42.585161),
    Sketcher.Constraint("DistanceX", -1, 1, 11, 2, 50.218709),
    Sketcher.Constraint("DistanceY", -1, 1, 12, 2, 21.79723),
    Sketcher.Constraint("DistanceX", 1, 2, 0, 2, 2.116611),
    Sketcher.Constraint("DistanceX", 2, 2, 1, 2, 8.31262),
    Sketcher.Constraint("DistanceX", 3, 2, 4, 2, 3.597941),
    Sketcher.Constraint("DistanceX", 3, 2, 8, 2, 3.597941),
    Sketcher.Constraint("DistanceY", 1, 2, 9, 2, 4.356292),
    Sketcher.Constraint("DistanceX", 0, 2, 10, 2, 7.561548),
])
pad10 = body3.newObject("PartDesign::Pad", "Pad009")
pad10.Profile = sketch12
pad10.Length = Q("0.45 in")

# Sketch on XY plane
sketch13 = body3.newObject("Sketcher::SketchObject", "Sketch012")
sketch13.AttachmentSupport = (doc.getObject("XY_Plane002"), [""])
sketch13.MapMode = "FlatFace"
sketch13.addGeometry([
    Part.LineSegment(V(-5.8, -53.1, 0), V(-5.8, -50.2, 0)),  # 0
    Part.LineSegment(V(-5.8, -50.2, 0), V(-3.6, -51, 0)),  # 1
    Part.LineSegment(V(-3.6, -51, 0), V(-5.8, -53.1, 0)),  # 2
    Part.LineSegment(V(6.1, -50.2, 0), V(6, -53.1, 0)),  # 3
    Part.LineSegment(V(6, -53.1, 0), V(4.1, -51.3, 0)),  # 4
    Part.LineSegment(V(4.1, -51.3, 0), V(6.1, -50.2, 0)),  # 5
], False)
sketch13.addConstraint([
    Sketcher.Constraint("Coincident", 0, 2, 1, 1),
    Sketcher.Constraint("Coincident", 1, 2, 2, 1),
    Sketcher.Constraint("Coincident", 2, 2, 0, 1),
    Sketcher.Constraint("Coincident", 3, 2, 4, 1),
    Sketcher.Constraint("Coincident", 4, 2, 5, 1),
    Sketcher.Constraint("Coincident", 5, 2, 3, 1),
    Sketcher.Constraint("Vertical", 0),
    Sketcher.Constraint("Horizontal", 2, 2, 3, 2),
    Sketcher.Constraint("Horizontal", 0, 2, 5, 2),
    Sketcher.Constraint("DistanceY", 0, 1, 0, 2, 2.82155),
    Sketcher.Constraint("DistanceX", -1, 1, 3, 2, 5.9682),
    Sketcher.Constraint("Distance", 2, 3.04626),
    Sketcher.Constraint("Distance", 4, 2.52282),
    Sketcher.Constraint("DistanceX", 1, 2, -1, 1, 3.554519),
    Sketcher.Constraint("DistanceY", 1, 2, -1, 1, 51.025521),
    Sketcher.Constraint("DistanceY", 4, 2, -1, 1, 51.338792),
    Sketcher.Constraint("DistanceX", 0, 2, 1, 2, 2.257238),
    Sketcher.Constraint("Distance", 3, 2.825075),
])
pocket3 = body3.newObject("PartDesign::Pocket", "Pocket002")
pocket3.Profile = sketch13
pocket3.Length = Q("0.1 in")
pocket3.Reversed = True

# Sketch on XY plane
sketch14 = body3.newObject("Sketcher::SketchObject", "Sketch013")
sketch14.AttachmentSupport = (doc.getObject("XY_Plane002"), [""])
sketch14.MapMode = "FlatFace"
sketch14.addGeometry([
    Part.Circle(V(0, -41, 0), V(0, 0, 1), 7),
    Part.Circle(V(-36, 21, 0), V(0, 0, 1), 7),
    Part.Circle(V(36, 21, 0), V(0, 0, 1), 7),
], False)
sketch14.addConstraint([
    Sketcher.Constraint("Equal", 0, 1),
    Sketcher.Constraint("Equal", 1, 2),
    Sketcher.Constraint("Symmetric", 1, 3, 2, 3, -2),
    Sketcher.Constraint("PointOnObject", 0, 3, -2),
    Sketcher.Constraint("Diameter", 0, Q("0.525 in")),
    Sketcher.Constraint("DistanceX", 1, 3, -1, 1, 35.612968),
    Sketcher.Constraint("DistanceY", 0, 3, 1, 3, 61.683471),
    Sketcher.Constraint("DistanceY", 0, 3, -1, 1, 41.122314),
])
pocket4 = body3.newObject("PartDesign::Pocket", "Pocket003")
pocket4.Profile = sketch14
pocket4.Length = Q("10 in")
pocket4.Reversed = True

# Sketch on XY plane
sketch15 = body3.newObject("Sketcher::SketchObject", "Sketch014")
sketch15.AttachmentSupport = (doc.getObject("XY_Plane002"), [""])
sketch15.MapMode = "FlatFace"
sketch15.AttachmentOffset = App.Placement(V(0, 0, 0.45 * 25.4), App.Rotation())
sketch15.addGeometry([
    Part.LineSegment(V(3.5, -51.3, 0), V(5.9, -52.7, 0)),  # 0
    Part.LineSegment(V(5.9, -52.7, 0), V(5.9, -50.1, 0)),  # 1
    Part.LineSegment(V(5.9, -50.1, 0), V(3.5, -51.3, 0)),  # 2
    Part.LineSegment(V(-5.6, -52.7, 0), V(-4.1, -51.3, 0)),  # 3
    Part.LineSegment(V(-4.1, -51.3, 0), V(-5.6, -50.1, 0)),  # 4
    Part.LineSegment(V(-5.6, -50.1, 0), V(-5.6, -52.7, 0)),  # 5
], False)
sketch15.addConstraint([
    Sketcher.Constraint("Coincident", 0, 2, 1, 1),
    Sketcher.Constraint("Coincident", 1, 2, 2, 1),
    Sketcher.Constraint("Coincident", 2, 2, 0, 1),
    Sketcher.Constraint("Coincident", 3, 2, 4, 1),
    Sketcher.Constraint("Coincident", 4, 2, 5, 1),
    Sketcher.Constraint("Coincident", 5, 2, 3, 1),
    Sketcher.Constraint("Vertical", 1),
    Sketcher.Constraint("Vertical", 5),
    Sketcher.Constraint("Horizontal", 1, 2, 4, 2),
    Sketcher.Constraint("Horizontal", 0, 2, 5, 2),
    Sketcher.Constraint("DistanceY", 2, 2, -1, 1, 51.327299),
    Sketcher.Constraint("DistanceY", 1, 1, 1, 2, 2.584465),
    Sketcher.Constraint("DistanceY", 1, 2, -1, 1, 50.14094),
    Sketcher.Constraint("DistanceX", 3, 2, -1, 1, 4.090189),
    Sketcher.Constraint("DistanceY", 3, 2, -1, 1, 51.338792),
    Sketcher.Constraint("DistanceX", 4, 2, -1, 1, 5.573871),
    Sketcher.Constraint("DistanceX", 3, 2, 1, 2, 9.988342),
    Sketcher.Constraint("Distance", 0, 2.749937),
])
pocket5 = body3.newObject("PartDesign::Pocket", "Pocket004")
pocket5.Profile = sketch15
pocket5.Length = Q("0.1 in")

# Sketch on XY plane
sketch16 = body3.newObject("Sketcher::SketchObject", "Sketch015")
sketch16.AttachmentSupport = (doc.getObject("XY_Plane002"), [""])
sketch16.MapMode = "FlatFace"
sketch16.AttachmentOffset = App.Placement(V(0, 0, 0.45 * 25.4), App.Rotation())
sketch16.addGeometry([
    Part.LineSegment(V(-41.5, 27.6, 0), V(-40.1, 29.5, 0)),  # 0
    Part.LineSegment(V(-40.1, 29.5, 0), V(-42.8, 31.4, 0)),  # 1
    Part.LineSegment(V(-42.8, 31.4, 0), V(-41.5, 27.6, 0)),  # 2
    Part.LineSegment(V(-47.7, 21.2, 0), V(-45.3, 19.5, 0)),  # 3
    Part.LineSegment(V(-45.3, 19.5, 0), V(-45.3, 22.6, 0)),  # 4
    Part.LineSegment(V(-45.3, 22.6, 0), V(-47.7, 21.2, 0)),  # 5
], False)
sketch16.addConstraint([
    Sketcher.Constraint("Coincident", 0, 2, 1, 1),
    Sketcher.Constraint("Coincident", 1, 2, 2, 1),
    Sketcher.Constraint("Coincident", 2, 2, 0, 1),
    Sketcher.Constraint("Coincident", 3, 2, 4, 1),
    Sketcher.Constraint("Coincident", 4, 2, 5, 1),
    Sketcher.Constraint("Coincident", 5, 2, 3, 1),
    Sketcher.Constraint("Vertical", 4),
    Sketcher.Constraint("Parallel", 1, 3),
    Sketcher.Constraint("DistanceY", 4, 1, 4, 2, 3.033849),
    Sketcher.Constraint("DistanceX", 1, 2, -1, 1, 42.830901),
    Sketcher.Constraint("Distance", 3, 2.87199),
    Sketcher.Constraint("DistanceY", -1, 1, 0, 2, 29.513068),
    Sketcher.Constraint("DistanceY", -1, 1, 1, 2, 31.385921),
    Sketcher.Constraint("DistanceX", 3, 2, 2, 2, 3.832231),
    Sketcher.Constraint("DistanceY", 3, 2, 2, 2, 8.036059),
    Sketcher.Constraint("DistanceY", 5, 2, 4, 2, 1.398069),
    Sketcher.Constraint("DistanceX", 5, 2, 0, 2, 7.54423),
    Sketcher.Constraint("Distance", 0, 2.368107),
])
pocket6 = body3.newObject("PartDesign::Pocket", "Pocket005")
pocket6.Profile = sketch16
pocket6.Length = Q("0.1 in")

doc.recompute()
